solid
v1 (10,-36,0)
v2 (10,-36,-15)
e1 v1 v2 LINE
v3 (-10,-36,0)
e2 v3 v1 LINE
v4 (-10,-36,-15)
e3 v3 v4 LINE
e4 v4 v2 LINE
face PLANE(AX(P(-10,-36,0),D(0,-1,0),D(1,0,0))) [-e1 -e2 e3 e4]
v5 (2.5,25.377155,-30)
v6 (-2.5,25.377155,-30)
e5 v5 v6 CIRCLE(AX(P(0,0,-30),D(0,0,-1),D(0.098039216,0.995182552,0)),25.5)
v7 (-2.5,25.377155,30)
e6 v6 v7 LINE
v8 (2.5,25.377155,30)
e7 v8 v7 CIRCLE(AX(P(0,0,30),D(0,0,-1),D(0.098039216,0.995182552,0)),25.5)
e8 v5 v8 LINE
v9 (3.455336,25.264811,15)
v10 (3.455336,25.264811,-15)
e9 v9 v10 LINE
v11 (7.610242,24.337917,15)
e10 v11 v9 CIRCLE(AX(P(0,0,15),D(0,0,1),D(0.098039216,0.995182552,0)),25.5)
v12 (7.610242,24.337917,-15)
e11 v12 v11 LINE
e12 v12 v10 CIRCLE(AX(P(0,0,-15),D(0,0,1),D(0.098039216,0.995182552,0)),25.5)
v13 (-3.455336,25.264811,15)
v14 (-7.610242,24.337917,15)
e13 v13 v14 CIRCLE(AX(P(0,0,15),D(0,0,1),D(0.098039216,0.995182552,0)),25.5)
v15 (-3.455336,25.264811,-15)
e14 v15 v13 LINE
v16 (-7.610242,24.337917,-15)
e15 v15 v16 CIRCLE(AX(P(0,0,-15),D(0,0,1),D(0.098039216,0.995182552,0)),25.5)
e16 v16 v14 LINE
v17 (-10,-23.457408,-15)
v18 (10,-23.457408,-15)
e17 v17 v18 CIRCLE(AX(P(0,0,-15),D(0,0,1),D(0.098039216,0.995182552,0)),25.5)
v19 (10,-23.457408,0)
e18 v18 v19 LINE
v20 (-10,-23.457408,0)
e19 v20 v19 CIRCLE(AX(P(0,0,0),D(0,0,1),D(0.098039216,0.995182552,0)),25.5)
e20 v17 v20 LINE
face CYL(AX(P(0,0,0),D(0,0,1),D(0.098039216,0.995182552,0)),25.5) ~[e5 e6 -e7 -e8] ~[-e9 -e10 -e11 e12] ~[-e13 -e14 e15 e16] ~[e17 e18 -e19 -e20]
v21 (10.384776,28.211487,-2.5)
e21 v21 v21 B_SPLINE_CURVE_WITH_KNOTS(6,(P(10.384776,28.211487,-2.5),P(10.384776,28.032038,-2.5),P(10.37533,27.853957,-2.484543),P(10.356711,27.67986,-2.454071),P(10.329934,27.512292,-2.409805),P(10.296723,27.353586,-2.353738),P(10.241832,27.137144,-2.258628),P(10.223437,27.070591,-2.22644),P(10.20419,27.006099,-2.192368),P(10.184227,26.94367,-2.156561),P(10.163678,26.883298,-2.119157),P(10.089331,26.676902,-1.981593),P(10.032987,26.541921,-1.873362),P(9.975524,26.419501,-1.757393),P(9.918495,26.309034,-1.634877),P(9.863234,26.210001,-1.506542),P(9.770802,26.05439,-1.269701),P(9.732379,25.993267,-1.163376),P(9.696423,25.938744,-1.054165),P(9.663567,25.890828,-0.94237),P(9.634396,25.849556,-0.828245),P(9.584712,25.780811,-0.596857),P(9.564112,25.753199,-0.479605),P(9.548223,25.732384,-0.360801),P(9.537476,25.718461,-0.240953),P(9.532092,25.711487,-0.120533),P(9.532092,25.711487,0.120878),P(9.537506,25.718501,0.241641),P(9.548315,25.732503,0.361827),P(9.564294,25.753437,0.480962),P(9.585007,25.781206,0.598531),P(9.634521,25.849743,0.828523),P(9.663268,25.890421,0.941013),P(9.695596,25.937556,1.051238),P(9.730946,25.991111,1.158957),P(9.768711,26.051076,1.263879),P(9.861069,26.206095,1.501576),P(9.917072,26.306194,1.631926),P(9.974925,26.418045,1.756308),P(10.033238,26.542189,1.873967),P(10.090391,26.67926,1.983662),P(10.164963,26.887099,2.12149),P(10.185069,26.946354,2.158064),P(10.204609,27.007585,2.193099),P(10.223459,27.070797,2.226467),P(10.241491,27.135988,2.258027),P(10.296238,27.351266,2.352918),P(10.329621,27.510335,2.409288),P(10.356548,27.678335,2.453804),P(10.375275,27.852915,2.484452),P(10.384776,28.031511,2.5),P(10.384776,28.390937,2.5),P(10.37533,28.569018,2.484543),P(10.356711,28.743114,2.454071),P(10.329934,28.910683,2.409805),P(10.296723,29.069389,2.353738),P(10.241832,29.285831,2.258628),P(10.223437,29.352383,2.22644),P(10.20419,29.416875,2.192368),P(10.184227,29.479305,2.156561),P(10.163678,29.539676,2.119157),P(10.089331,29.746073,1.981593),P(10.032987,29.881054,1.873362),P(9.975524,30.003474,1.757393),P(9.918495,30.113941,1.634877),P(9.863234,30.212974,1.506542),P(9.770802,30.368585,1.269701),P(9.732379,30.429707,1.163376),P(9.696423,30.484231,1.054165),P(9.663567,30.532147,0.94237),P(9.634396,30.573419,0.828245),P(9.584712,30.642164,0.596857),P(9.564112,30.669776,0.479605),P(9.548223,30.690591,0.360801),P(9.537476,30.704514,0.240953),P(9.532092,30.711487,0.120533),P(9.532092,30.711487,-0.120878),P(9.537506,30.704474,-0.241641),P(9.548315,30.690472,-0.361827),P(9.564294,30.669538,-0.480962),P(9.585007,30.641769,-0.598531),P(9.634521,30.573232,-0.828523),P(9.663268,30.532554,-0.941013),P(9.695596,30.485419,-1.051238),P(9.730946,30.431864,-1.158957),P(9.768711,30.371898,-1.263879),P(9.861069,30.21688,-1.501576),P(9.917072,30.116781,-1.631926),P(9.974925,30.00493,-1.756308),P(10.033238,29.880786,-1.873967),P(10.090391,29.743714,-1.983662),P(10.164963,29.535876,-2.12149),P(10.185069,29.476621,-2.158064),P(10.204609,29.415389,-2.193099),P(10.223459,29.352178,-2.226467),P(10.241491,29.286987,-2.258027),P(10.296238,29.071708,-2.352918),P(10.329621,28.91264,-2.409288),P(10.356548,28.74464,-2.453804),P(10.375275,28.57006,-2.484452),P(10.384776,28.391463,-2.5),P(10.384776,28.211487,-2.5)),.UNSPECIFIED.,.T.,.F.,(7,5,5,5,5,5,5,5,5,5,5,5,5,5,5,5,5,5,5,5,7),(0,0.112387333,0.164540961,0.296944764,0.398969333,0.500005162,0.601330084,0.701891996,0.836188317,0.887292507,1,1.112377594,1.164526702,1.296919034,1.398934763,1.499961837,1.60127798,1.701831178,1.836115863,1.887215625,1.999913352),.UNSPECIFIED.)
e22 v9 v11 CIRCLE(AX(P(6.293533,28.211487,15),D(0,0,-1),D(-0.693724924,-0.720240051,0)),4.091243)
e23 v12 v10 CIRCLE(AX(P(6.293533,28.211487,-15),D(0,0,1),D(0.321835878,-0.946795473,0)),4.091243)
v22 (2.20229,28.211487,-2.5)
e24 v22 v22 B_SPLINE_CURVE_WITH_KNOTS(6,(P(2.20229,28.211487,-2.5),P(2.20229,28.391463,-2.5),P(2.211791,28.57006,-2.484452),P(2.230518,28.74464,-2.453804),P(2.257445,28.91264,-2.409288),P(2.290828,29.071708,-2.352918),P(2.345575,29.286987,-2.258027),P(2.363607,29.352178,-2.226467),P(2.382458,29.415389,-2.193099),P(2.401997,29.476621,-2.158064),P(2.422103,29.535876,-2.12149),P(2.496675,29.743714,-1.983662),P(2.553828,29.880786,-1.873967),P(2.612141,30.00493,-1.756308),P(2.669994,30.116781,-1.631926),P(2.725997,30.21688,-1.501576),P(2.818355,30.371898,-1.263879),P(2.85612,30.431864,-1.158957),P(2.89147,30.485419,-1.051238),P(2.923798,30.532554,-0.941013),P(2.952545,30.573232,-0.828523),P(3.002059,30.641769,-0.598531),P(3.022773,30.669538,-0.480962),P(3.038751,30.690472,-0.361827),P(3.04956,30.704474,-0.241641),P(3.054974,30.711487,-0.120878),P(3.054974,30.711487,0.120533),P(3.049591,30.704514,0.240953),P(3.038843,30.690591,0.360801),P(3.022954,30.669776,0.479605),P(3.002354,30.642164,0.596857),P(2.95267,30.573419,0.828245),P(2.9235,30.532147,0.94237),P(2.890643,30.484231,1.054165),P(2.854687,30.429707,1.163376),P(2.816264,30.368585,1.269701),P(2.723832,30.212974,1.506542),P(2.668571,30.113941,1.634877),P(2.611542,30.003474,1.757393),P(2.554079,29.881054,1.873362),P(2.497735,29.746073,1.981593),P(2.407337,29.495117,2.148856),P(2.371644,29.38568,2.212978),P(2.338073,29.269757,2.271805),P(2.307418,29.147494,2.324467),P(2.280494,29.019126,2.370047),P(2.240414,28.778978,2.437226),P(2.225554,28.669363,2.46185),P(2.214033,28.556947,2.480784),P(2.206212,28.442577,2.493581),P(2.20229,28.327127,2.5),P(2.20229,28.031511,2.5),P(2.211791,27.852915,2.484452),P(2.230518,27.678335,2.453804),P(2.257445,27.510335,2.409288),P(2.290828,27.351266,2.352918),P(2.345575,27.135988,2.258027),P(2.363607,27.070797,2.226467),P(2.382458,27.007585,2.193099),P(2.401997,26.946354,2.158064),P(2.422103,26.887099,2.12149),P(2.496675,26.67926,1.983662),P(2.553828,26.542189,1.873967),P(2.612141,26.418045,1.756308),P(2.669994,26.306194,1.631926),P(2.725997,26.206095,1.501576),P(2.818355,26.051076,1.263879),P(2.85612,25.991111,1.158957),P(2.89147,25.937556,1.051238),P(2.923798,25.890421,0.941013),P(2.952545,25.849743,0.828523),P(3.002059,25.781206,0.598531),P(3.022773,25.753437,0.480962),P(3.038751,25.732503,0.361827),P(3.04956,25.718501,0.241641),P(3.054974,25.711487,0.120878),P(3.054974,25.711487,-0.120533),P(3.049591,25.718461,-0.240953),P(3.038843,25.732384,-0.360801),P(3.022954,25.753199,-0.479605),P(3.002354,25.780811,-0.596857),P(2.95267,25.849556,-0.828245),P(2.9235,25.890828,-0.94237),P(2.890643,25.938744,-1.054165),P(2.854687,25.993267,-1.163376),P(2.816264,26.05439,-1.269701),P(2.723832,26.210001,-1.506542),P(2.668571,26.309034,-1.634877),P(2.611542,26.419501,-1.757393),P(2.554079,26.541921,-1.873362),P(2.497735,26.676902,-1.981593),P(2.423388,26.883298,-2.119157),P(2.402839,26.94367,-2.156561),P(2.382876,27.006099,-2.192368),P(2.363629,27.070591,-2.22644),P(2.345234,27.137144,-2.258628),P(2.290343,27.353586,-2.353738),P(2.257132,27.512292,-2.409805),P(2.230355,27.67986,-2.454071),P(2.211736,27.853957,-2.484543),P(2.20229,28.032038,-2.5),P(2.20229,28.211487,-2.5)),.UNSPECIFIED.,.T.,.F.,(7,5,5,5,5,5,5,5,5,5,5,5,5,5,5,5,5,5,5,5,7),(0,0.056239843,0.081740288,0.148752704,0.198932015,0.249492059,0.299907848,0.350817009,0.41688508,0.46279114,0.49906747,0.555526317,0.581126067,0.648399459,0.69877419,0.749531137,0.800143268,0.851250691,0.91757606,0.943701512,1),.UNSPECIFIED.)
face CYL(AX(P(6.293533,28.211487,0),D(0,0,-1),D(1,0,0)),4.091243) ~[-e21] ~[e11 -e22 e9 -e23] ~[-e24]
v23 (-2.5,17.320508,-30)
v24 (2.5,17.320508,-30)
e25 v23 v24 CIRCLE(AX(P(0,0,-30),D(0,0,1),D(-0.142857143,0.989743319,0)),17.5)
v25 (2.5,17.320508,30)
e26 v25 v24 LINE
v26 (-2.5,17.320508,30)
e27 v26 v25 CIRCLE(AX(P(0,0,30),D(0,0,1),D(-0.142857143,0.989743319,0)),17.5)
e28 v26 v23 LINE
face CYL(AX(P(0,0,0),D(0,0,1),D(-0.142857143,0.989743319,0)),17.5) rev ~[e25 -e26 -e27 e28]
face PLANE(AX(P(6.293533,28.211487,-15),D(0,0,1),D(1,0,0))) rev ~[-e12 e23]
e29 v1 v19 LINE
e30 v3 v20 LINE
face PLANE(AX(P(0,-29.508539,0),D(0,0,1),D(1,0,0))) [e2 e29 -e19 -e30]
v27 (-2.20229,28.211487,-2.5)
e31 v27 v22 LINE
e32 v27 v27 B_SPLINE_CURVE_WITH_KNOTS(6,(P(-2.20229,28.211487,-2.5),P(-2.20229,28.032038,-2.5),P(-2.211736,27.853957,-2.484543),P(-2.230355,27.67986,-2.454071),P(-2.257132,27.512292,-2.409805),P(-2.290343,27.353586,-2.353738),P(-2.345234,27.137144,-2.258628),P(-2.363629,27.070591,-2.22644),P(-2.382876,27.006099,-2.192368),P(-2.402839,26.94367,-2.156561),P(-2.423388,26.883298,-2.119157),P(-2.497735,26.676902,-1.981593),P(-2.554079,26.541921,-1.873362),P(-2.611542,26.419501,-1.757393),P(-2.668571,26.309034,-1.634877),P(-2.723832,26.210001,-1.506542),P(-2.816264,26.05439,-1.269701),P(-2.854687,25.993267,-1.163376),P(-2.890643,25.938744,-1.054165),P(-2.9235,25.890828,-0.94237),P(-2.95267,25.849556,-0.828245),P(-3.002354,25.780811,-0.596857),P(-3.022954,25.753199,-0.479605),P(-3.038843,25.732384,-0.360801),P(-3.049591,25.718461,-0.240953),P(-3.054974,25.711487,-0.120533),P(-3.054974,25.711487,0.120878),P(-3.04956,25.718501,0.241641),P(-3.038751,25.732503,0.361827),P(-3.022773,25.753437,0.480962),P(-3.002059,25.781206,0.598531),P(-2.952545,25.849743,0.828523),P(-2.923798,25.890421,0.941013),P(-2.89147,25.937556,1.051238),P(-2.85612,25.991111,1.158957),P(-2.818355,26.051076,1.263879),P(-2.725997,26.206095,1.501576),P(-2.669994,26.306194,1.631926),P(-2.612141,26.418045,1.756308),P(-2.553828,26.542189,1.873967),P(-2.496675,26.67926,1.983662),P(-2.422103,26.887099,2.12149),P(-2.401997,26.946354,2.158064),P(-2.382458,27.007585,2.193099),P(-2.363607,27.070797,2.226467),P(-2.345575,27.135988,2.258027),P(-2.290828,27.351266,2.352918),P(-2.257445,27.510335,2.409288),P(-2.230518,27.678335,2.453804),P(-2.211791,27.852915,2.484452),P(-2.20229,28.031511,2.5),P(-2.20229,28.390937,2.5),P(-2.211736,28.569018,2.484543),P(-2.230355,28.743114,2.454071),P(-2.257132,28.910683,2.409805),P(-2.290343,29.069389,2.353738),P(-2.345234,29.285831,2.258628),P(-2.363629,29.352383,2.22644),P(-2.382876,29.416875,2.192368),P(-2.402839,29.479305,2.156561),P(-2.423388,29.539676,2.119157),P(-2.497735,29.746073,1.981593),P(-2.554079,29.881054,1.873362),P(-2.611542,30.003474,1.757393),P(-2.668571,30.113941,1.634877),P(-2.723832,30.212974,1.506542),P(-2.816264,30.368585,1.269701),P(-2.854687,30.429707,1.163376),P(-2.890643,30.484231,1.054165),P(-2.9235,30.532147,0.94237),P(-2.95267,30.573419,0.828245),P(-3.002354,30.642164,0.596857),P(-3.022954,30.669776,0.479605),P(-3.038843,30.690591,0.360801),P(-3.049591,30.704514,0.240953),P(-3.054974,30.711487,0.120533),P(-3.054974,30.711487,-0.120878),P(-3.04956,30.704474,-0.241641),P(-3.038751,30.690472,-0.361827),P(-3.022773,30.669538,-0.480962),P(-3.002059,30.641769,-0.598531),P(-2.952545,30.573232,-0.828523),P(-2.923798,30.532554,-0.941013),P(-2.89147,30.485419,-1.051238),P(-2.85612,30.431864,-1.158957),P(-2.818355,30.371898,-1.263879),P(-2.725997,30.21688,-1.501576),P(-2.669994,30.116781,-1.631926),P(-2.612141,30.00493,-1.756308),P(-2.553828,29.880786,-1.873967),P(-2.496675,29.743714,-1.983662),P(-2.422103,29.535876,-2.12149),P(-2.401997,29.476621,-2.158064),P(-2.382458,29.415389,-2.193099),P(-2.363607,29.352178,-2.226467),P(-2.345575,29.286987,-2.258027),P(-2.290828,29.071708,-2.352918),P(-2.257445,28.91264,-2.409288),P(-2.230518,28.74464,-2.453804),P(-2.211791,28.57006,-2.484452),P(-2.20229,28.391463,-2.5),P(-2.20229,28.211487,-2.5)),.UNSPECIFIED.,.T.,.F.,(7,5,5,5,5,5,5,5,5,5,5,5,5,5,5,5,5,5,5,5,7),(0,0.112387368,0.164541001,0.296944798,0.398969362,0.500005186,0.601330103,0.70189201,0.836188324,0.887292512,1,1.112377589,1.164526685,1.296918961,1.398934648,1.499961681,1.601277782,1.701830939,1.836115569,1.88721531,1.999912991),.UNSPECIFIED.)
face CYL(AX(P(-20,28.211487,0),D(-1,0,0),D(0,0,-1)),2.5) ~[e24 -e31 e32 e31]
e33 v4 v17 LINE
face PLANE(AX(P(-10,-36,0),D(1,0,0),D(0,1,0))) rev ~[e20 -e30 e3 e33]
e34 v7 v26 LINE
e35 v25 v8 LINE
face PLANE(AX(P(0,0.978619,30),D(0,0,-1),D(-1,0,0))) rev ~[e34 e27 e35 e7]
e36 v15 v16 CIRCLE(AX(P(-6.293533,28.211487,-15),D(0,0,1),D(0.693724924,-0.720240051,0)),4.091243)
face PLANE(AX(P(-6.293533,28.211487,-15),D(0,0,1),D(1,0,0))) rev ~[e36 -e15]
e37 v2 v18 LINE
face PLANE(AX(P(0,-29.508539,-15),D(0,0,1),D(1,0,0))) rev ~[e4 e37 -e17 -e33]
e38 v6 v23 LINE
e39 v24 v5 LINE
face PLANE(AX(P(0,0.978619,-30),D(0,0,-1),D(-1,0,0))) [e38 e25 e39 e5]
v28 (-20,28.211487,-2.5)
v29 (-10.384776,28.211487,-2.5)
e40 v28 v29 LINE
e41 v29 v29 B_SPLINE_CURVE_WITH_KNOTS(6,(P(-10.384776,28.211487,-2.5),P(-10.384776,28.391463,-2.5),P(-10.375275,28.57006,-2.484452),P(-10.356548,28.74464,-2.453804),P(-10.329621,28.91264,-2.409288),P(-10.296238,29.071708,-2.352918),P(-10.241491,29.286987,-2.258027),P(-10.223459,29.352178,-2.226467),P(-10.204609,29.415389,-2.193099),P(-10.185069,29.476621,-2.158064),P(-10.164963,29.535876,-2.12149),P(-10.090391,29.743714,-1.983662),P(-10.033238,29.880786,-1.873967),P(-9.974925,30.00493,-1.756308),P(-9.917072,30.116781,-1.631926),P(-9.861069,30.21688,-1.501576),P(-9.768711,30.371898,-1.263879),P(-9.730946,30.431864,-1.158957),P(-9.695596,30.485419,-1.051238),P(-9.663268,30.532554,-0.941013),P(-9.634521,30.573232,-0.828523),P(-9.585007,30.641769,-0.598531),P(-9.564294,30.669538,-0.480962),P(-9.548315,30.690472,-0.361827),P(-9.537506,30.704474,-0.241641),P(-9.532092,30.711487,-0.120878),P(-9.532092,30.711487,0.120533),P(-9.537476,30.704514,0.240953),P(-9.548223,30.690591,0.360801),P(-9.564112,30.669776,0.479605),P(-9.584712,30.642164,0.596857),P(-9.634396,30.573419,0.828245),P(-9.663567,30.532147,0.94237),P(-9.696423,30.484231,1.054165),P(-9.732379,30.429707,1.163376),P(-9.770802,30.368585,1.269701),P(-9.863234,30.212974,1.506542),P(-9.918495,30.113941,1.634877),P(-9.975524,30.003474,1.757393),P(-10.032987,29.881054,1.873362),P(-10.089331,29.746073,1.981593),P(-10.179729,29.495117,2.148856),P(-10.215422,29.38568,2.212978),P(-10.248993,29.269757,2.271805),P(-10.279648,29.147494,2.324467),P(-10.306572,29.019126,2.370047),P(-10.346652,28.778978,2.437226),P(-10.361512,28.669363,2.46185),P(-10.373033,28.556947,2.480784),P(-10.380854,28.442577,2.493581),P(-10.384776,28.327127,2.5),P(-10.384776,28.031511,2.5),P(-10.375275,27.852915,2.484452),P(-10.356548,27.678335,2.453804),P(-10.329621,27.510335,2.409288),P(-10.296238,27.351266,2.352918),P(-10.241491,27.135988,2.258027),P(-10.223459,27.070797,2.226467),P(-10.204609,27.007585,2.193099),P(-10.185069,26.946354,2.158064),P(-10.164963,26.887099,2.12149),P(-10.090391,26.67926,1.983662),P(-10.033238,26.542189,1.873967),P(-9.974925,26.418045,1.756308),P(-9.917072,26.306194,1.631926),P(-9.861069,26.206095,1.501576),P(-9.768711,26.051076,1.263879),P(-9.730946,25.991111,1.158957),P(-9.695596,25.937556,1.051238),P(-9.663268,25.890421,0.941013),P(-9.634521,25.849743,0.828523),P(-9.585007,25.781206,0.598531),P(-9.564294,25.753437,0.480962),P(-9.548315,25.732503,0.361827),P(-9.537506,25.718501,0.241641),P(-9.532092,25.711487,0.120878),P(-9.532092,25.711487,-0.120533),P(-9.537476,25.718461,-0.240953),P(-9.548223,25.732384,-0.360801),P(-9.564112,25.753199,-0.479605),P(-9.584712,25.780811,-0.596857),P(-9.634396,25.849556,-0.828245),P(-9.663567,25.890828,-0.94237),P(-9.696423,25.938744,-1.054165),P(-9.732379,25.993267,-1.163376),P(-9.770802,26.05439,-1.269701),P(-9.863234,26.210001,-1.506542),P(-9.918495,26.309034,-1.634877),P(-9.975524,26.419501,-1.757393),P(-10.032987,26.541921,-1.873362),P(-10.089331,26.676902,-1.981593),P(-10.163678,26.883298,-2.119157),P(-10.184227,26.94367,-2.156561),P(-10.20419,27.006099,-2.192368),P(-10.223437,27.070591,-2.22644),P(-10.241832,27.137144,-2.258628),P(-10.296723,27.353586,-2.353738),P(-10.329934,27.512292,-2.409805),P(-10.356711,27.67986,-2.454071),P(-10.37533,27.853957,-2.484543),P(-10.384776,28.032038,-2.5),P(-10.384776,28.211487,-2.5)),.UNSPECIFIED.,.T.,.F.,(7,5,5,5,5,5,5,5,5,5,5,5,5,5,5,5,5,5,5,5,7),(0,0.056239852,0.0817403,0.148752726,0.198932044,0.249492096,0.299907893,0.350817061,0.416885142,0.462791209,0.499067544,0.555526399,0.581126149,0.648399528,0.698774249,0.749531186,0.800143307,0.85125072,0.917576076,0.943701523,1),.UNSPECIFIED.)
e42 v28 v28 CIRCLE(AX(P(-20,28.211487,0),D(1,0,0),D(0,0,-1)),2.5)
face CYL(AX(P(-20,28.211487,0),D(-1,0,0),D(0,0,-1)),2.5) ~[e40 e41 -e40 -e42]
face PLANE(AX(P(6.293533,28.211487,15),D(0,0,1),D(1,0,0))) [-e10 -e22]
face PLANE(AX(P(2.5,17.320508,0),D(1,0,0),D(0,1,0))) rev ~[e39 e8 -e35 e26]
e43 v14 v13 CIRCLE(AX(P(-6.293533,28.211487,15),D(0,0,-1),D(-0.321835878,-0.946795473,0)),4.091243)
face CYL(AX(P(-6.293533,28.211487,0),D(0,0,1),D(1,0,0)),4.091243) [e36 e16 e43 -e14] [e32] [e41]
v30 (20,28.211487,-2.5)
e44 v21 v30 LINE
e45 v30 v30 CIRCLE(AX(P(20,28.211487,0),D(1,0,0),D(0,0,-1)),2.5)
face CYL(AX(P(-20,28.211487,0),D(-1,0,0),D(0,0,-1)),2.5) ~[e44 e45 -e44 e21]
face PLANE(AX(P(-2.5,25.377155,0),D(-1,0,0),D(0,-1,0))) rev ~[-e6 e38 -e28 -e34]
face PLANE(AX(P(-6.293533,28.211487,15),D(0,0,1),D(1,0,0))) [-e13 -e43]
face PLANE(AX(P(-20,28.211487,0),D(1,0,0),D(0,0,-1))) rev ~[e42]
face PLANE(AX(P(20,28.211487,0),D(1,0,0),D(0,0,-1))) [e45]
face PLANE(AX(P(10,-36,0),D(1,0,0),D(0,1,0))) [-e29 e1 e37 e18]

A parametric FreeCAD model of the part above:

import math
import FreeCAD as App
import Part
import Sketcher
from FreeCAD import Vector
Q = App.Units.Quantity


def add_polygon(sketch, points):
    """Adds a closed chain of lines whose ends are joined by coincident constraints."""
    first, n = sketch.GeometryCount, len(points)
    for a, b in zip(points, points[1:] + points[:1]):
        sketch.addGeometry(Part.LineSegment(App.Vector(*a, 0), App.Vector(*b, 0)), False)
    for i in range(n):
        sketch.addConstraint(Sketcher.Constraint("Coincident", first + i, 2, first + (i + 1) % n, 1))

doc = App.newDocument("Part")
body = doc.addObject("PartDesign::Body", "Body")

# Sketch on XY plane
sketch1 = body.newObject("Sketcher::SketchObject", "Sketch")
sketch1.AttachmentSupport = (doc.getObject("XY_Plane"), [""])
sketch1.MapMode = "FlatFace"
sketch1.addGeometry([
    Part.LineSegment(Vector(-2, 17, 0), Vector(-2, 25, 0)),
    Part.ArcOfCircle(Part.Circle(Vector(0, 0, 0), Vector(0, 0, 1), 26), math.radians(96), math.radians(444)),
    Part.LineSegment(Vector(2, 25, 0), Vector(2, 17, 0)),
    Part.ArcOfCircle(Part.Circle(Vector(0, 0, 0), Vector(0, 0, 1), 18), math.radians(98), math.radians(442)),
], False)
sketch1.addConstraint([
    Sketcher.Constraint("Coincident", 0, 2, 1, 1),
    Sketcher.Constraint("Coincident", 1, 2, 2, 1),
    Sketcher.Constraint("Coincident", 2, 2, 3, 2),
    Sketcher.Constraint("Coincident", 3, 1, 0, 1),
    Sketcher.Constraint("Vertical", 0),
    Sketcher.Constraint("Vertical", 2),
    Sketcher.Constraint("Coincident", 1, 3, -1, 1),
    Sketcher.Constraint("Coincident", 3, 3, -1, 1),
    Sketcher.Constraint("Horizontal", 0, 2, 1, 2),
    Sketcher.Constraint("Radius", 1, Q("25.5 mm")),
    Sketcher.Constraint("Radius", 3, Q("17.5 mm")),
    Sketcher.Constraint("DistanceX", 0, 2, 1, 2, Q("5 mm")),
])
pad1 = body.newObject("PartDesign::Pad", "Pad")
pad1.Profile = sketch1
pad1.Length = 60
pad1.Midplane = True

# Sketch on XY plane
sketch2 = body.newObject("Sketcher::SketchObject", "Sketch001")
sketch2.AttachmentSupport = (doc.getObject("XY_Plane"), [""])
sketch2.MapMode = "FlatFace"
sketch2.addGeometry([
    Part.Circle(Vector(6.3, 28.2, 0), Vector(0, 0, 1), 4.1),
    Part.Circle(Vector(-6.3, 28.2, 0), Vector(0, 0, 1), 4.1),
], False)
sketch2.addConstraint([
    Sketcher.Constraint("Equal", 0, 1),
    Sketcher.Constraint("Symmetric", 0, 3, 1, 3, -2),
    Sketcher.Constraint("Diameter", 0, Q("8.182485 mm")),
    Sketcher.Constraint("DistanceX", -1, 1, 0, 3, Q("6.293533 mm")),
    Sketcher.Constraint("DistanceY", -1, 1, 0, 3, Q("28.211487 mm")),
])
pad2 = body.newObject("PartDesign::Pad", "Pad001")
pad2.Profile = sketch2
pad2.Length = 30
pad2.Midplane = True

# Sketch on XY plane
sketch3 = body.newObject("Sketcher::SketchObject", "Sketch002")
sketch3.AttachmentSupport = (doc.getObject("XY_Plane"), [""])
sketch3.MapMode = "FlatFace"
add_polygon(sketch3, [(-10, -23), (-10, -36), (10, -36), (10, -23)])  # lines 0-3
sketch3.addConstraint([
    Sketcher.Constraint("Vertical", 0),
    Sketcher.Constraint("Horizontal", 1),
    Sketcher.Constraint("Vertical", 2),
    Sketcher.Constraint("Horizontal", 3),
    Sketcher.Constraint("DistanceX", 1, 1, 1, 2, Q("20 mm")),
    Sketcher.Constraint("DistanceX", 0, 2, -1, 1, Q("10 mm")),
    Sketcher.Constraint("DistanceY", 0, 2, -1, 1, Q("36 mm")),
    Sketcher.Constraint("DistanceY", 0, 2, 0, 1, Q("12.982922 mm")),
])
pad3 = body.newObject("PartDesign::Pad", "Pad002")
pad3.Profile = sketch3
pad3.Length = 15
pad3.Reversed = True

# Sketch on YZ plane
sketch4 = body.newObject("Sketcher::SketchObject", "Sketch003")
sketch4.AttachmentSupport = (doc.getObject("YZ_Plane"), [""])
sketch4.MapMode = "FlatFace"
sketch4.addGeometry(Part.Circle(Vector(28.2, 0, 0), Vector(0, 0, 1), 2.5), False)
sketch4.addConstraint([
    Sketcher.Constraint("PointOnObject", 0, 3, -1),
    Sketcher.Constraint("Diameter", 0, Q("5 mm")),
    Sketcher.Constraint("DistanceX", -1, 1, 0, 3, Q("28.211487 mm")),
])
pad4 = body.newObject("PartDesign::Pad", "Pad003")
pad4.Profile = sketch4
pad4.Type = "TwoLengths"
pad4.Length = 20
pad4.Length2 = 20

doc.recompute()
